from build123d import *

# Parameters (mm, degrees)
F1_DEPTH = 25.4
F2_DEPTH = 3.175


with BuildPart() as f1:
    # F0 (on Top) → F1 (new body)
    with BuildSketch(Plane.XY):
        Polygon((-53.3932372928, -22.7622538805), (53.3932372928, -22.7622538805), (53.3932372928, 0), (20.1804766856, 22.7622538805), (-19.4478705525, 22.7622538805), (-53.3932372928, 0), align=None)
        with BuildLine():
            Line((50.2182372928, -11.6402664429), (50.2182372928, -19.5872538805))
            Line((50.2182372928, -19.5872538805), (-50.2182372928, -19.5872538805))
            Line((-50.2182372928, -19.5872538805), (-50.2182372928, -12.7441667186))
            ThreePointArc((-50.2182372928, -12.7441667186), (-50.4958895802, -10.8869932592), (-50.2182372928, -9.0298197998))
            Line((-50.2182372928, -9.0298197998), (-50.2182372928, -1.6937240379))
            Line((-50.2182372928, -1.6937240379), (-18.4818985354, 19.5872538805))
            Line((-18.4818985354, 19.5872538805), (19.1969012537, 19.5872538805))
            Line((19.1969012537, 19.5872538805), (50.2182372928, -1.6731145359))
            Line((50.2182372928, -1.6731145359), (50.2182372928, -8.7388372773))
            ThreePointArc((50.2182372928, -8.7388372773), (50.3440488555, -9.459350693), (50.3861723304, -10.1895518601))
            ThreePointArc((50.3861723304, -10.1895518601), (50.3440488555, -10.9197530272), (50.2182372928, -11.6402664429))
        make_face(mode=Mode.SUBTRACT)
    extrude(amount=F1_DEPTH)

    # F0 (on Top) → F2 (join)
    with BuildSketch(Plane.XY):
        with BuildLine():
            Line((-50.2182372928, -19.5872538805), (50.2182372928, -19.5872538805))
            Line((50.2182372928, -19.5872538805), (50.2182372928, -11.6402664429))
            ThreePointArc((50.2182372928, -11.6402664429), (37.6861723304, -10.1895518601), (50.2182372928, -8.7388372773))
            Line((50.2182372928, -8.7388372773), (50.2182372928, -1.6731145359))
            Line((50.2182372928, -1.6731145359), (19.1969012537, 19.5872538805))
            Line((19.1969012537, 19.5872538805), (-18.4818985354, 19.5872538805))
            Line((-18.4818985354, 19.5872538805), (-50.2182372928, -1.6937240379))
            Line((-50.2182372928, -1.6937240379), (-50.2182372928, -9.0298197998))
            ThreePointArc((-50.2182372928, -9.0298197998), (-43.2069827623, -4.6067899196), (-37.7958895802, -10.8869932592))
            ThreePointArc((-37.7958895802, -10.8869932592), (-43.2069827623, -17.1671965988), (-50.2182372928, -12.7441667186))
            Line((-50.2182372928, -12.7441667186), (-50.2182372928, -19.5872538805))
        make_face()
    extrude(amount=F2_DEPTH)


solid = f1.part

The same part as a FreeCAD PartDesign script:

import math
import FreeCAD as App
import Part
import Sketcher

V = App.Vector
Q = App.Units.Quantity


def add_polygon(sketch, points):
    """Adds a closed chain of lines whose ends are joined by coincident constraints."""
    first, n = sketch.GeometryCount, len(points)
    for a, b in zip(points, points[1:] + points[:1]):
        sketch.addGeometry(Part.LineSegment(App.Vector(*a, 0), App.Vector(*b, 0)), False)
    for i in range(n):
        sketch.addConstraint(Sketcher.Constraint("Coincident", first + i, 2, first + (i + 1) % n, 1))

doc = App.newDocument("Part")
body = doc.addObject("PartDesign::Body", "Body")

sketch1 = body.newObject("Sketcher::SketchObject", "Sketch")
sketch1.AttachmentSupport = (doc.getObject("XY_Plane"), [""])
sketch1.MapMode = "FlatFace"
add_polygon(sketch1, [(-53.4, -22.8), (53.4, -22.8), (53.4, 0), (20.2, 22.8), (-19.4, 22.8), (-53.4, 0)])
sketch1.addGeometry(Part.ArcOfCircle(Part.Circle(V(44, -10.2, 0), V(0, 0, 1), 6.3), math.radians(-13.21), math.radians(0)), False)
sketch1.addGeometry(Part.LineSegment(V(50.2, -11.6, 0), V(50.2, -19.6, 0)), False)
sketch1.addGeometry(Part.LineSegment(V(50.2, -19.6, 0), V(-50.2, -19.6, 0)), False)
sketch1.addGeometry(Part.LineSegment(V(-50.2, -19.6, 0), V(-50.2, -12.7, 0)), False)
sketch1.addGeometry(Part.ArcOfCircle(Part.Circle(V(-44.1, -10.9, 0), V(0, 0, 1), 6.4), math.radians(163), math.radians(197)), False)
sketch1.addGeometry(Part.LineSegment(V(-50.2, -9, 0), V(-50.2, -1.7, 0)), False)
sketch1.addGeometry(Part.LineSegment(V(-50.2, -1.7, 0), V(-18.5, 19.6, 0)), False)
sketch1.addGeometry(Part.LineSegment(V(-18.5, 19.6, 0), V(19.2, 19.6, 0)), False)
sketch1.addGeometry(Part.LineSegment(V(19.2, 19.6, 0), V(50.2, -1.7, 0)), False)
sketch1.addGeometry(Part.LineSegment(V(50.2, -1.7, 0), V(50.2, -8.7, 0)), False)
sketch1.addGeometry(Part.ArcOfCircle(Part.Circle(V(44, -10.2, 0), V(0, 0, 1), 6.3), math.radians(0), math.radians(13.21)), False)
sketch1.addConstraint(Sketcher.Constraint("Coincident", 6, 1, 7, 1))
sketch1.addConstraint(Sketcher.Constraint("Coincident", 7, 2, 8, 1))
sketch1.addConstraint(Sketcher.Constraint("Coincident", 8, 2, 9, 1))
sketch1.addConstraint(Sketcher.Constraint("Coincident", 9, 2, 10, 2))
sketch1.addConstraint(Sketcher.Constraint("Coincident", 10, 1, 11, 1))
sketch1.addConstraint(Sketcher.Constraint("Coincident", 11, 2, 12, 1))
sketch1.addConstraint(Sketcher.Constraint("Coincident", 12, 2, 13, 1))
sketch1.addConstraint(Sketcher.Constraint("Coincident", 13, 2, 14, 1))
sketch1.addConstraint(Sketcher.Constraint("Coincident", 14, 2, 15, 1))
sketch1.addConstraint(Sketcher.Constraint("Coincident", 15, 2, 16, 2))
sketch1.addConstraint(Sketcher.Constraint("Tangent", 16, 1, 6, 2))
sketch1.addConstraint(Sketcher.Constraint("Horizontal", 0))
sketch1.addConstraint(Sketcher.Constraint("Vertical", 1))
sketch1.addConstraint(Sketcher.Constraint("Horizontal", 3))
sketch1.addConstraint(Sketcher.Constraint("Vertical", 5))
sketch1.addConstraint(Sketcher.Constraint("Vertical", 7))
sketch1.addConstraint(Sketcher.Constraint("Horizontal", 8))
sketch1.addConstraint(Sketcher.Constraint("Vertical", 9))
sketch1.addConstraint(Sketcher.Constraint("Vertical", 11))
sketch1.addConstraint(Sketcher.Constraint("Horizontal", 13))
sketch1.addConstraint(Sketcher.Constraint("Vertical", 15))
sketch1.addConstraint(Sketcher.Constraint("Equal", 6, 10))
sketch1.addConstraint(Sketcher.Constraint("Equal", 10, 16))
sketch1.addConstraint(Sketcher.Constraint("Symmetric", 1, 2, 4, 2, -1, 1))
sketch1.addConstraint(Sketcher.Constraint("PointOnObject", 1, 2, -1))
sketch1.addConstraint(Sketcher.Constraint("Parallel", 4, 12))
sketch1.addConstraint(Sketcher.Constraint("Parallel", 2, 14))
sketch1.addConstraint(Sketcher.Constraint("Horizontal", 6, 3, 16, 1))
sketch1.addConstraint(Sketcher.Constraint("Vertical", 9, 2, 10, 1))
sketch1.addConstraint(Sketcher.Constraint("Vertical", 7, 2, 14, 2))
sketch1.addConstraint(Sketcher.Constraint("Radius", 6, Q("0.25 in")))
sketch1.addConstraint(Sketcher.Constraint("DistanceX", 6, 1, 0, 2, Q("0.125 in")))
sketch1.addConstraint(Sketcher.Constraint("DistanceY", 0, 2, 7, 2, Q("0.125 in")))
sketch1.addConstraint(Sketcher.Constraint("DistanceX", 5, 2, 8, 2, Q("0.125 in")))
sketch1.addConstraint(Sketcher.Constraint("DistanceY", 12, 2, 3, 2, Q("0.125 in")))
sketch1.addConstraint(Sketcher.Constraint("DistanceX", 13, 1, 13, 2, 37.6788))
sketch1.addConstraint(Sketcher.Constraint("DistanceX", 12, 2, -1, 1, 18.481899))
sketch1.addConstraint(Sketcher.Constraint("Distance", 12, 38.210931))
sketch1.addConstraint(Sketcher.Constraint("DistanceX", 0, 1, 0, 2, 106.786475))
sketch1.addConstraint(Sketcher.Constraint("DistanceX", 3, 2, 3, 1, 39.628347))
sketch1.addConstraint(Sketcher.Constraint("DistanceY", 1, 1, 1, 2, 22.762254))
sketch1.addConstraint(Sketcher.Constraint("DistanceY", 7, 2, 7, 1, 7.946987))
sketch1.addConstraint(Sketcher.Constraint("DistanceY", 9, 1, 9, 2, 6.843087))
sketch1.addConstraint(Sketcher.Constraint("DistanceY", 11, 1, 11, 2, 7.336096))
sketch1.addConstraint(Sketcher.Constraint("DistanceY", 15, 2, 15, 1, 7.065723))
sketch1.addConstraint(Sketcher.Constraint("DistanceY", 6, 3, -1, 1, 10.189552))
pad1 = body.newObject("PartDesign::Pad", "Pad")
pad1.Profile = sketch1
pad1.Length = Q("1 in")

sketch2 = body.newObject("Sketcher::SketchObject", "Sketch001")
sketch2.AttachmentSupport = (doc.getObject("XY_Plane"), [""])
sketch2.MapMode = "FlatFace"
sketch2.addGeometry(Part.LineSegment(V(-50.2, -19.6, 0), V(50.2, -19.6, 0)), False)
sketch2.addGeometry(Part.LineSegment(V(50.2, -19.6, 0), V(50.2, -11.6, 0)), False)
sketch2.addGeometry(Part.ArcOfCircle(Part.Circle(V(44, -10.2, 0), V(0, 0, 1), 6.3), math.radians(13), math.radians(347)), False)
sketch2.addGeometry(Part.LineSegment(V(50.2, -8.7, 0), V(50.2, -1.7, 0)), False)
sketch2.addGeometry(Part.LineSegment(V(50.2, -1.7, 0), V(19.2, 19.6, 0)), False)
sketch2.addGeometry(Part.LineSegment(V(19.2, 19.6, 0), V(-18.5, 19.6, 0)), False)
sketch2.addGeometry(Part.LineSegment(V(-18.5, 19.6, 0), V(-50.2, -1.7, 0)), False)
sketch2.addGeometry(Part.LineSegment(V(-50.2, -1.7, 0), V(-50.2, -9, 0)), False)
sketch2.addGeometry(Part.ArcOfCircle(Part.Circle(V(-44.1, -10.9, 0), V(0, 0, 1), 6.3), math.radians(0), math.radians(163)), False)
sketch2.addGeometry(Part.ArcOfCircle(Part.Circle(V(-44.1, -10.9, 0), V(0, 0, 1), 6.3), math.radians(-163), math.radians(0)), False)
sketch2.addGeometry(Part.LineSegment(V(-50.2, -12.7, 0), V(-50.2, -19.6, 0)), False)
sketch2.addConstraint(Sketcher.Constraint("Coincident", 0, 2, 1, 1))
sketch2.addConstraint(Sketcher.Constraint("Coincident", 1, 2, 2, 2))
sketch2.addConstraint(Sketcher.Constraint("Coincident", 2, 1, 3, 1))
sketch2.addConstraint(Sketcher.Constraint("Coincident", 3, 2, 4, 1))
sketch2.addConstraint(Sketcher.Constraint("Coincident", 4, 2, 5, 1))
sketch2.addConstraint(Sketcher.Constraint("Coincident", 5, 2, 6, 1))
sketch2.addConstraint(Sketcher.Constraint("Coincident", 6, 2, 7, 1))
sketch2.addConstraint(Sketcher.Constraint("Coincident", 7, 2, 8, 2))
sketch2.addConstraint(Sketcher.Constraint("Tangent", 8, 1, 9, 2))
sketch2.addConstraint(Sketcher.Constraint("Coincident", 9, 1, 10, 1))
sketch2.addConstraint(Sketcher.Constraint("Coincident", 10, 2, 0, 1))
sketch2.addConstraint(Sketcher.Constraint("Horizontal", 0))
sketch2.addConstraint(Sketcher.Constraint("Vertical", 1))
sketch2.addConstraint(Sketcher.Constraint("Vertical", 3))
sketch2.addConstraint(Sketcher.Constraint("Horizontal", 5))
sketch2.addConstraint(Sketcher.Constraint("Vertical", 7))
sketch2.addConstraint(Sketcher.Constraint("Vertical", 10))
sketch2.addConstraint(Sketcher.Constraint("Equal", 2, 8))
sketch2.addConstraint(Sketcher.Constraint("Equal", 8, 9))
sketch2.addConstraint(Sketcher.Constraint("Horizontal", 9, 3, 8, 1))
sketch2.addConstraint(Sketcher.Constraint("Vertical", 1, 2, 2, 1))
sketch2.addConstraint(Sketcher.Constraint("Vertical", 7, 2, 9, 1))
sketch2.addConstraint(Sketcher.Constraint("Radius", 2, Q("0.25 in")))
sketch2.addConstraint(Sketcher.Constraint("DistanceX", 5, 2, 5, 1, 37.6788))
sketch2.addConstraint(Sketcher.Constraint("DistanceX", -1, 1, 4, 2, 19.196901))
sketch2.addConstraint(Sketcher.Constraint("Distance", 6, 38.210931))
sketch2.addConstraint(Sketcher.Constraint("DistanceX", 0, 1, 0, 2, 100.436475))
sketch2.addConstraint(Sketcher.Constraint("DistanceY", 1, 1, 1, 2, 7.946987))
sketch2.addConstraint(Sketcher.Constraint("DistanceY", 3, 1, 3, 2, 7.065723))
sketch2.addConstraint(Sketcher.Constraint("DistanceY", 7, 2, 7, 1, 7.336096))
sketch2.addConstraint(Sketcher.Constraint("DistanceY", 10, 2, 10, 1, 6.843087))
sketch2.addConstraint(Sketcher.Constraint("DistanceY", 2, 3, -1, 1, 10.189552))
sketch2.addConstraint(Sketcher.Constraint("DistanceX", 8, 3, -1, 1, 44.14589))
sketch2.addConstraint(Sketcher.Constraint("DistanceY", 7, 2, -1, 1, 9.02982))
sketch2.addConstraint(Sketcher.Constraint("DistanceX", 8, 3, 2, 3, 88.182062))
pad2 = body.newObject("PartDesign::Pad", "Pad001")
pad2.Profile = sketch2
pad2.Length = Q("0.125 in")

doc.recompute()
